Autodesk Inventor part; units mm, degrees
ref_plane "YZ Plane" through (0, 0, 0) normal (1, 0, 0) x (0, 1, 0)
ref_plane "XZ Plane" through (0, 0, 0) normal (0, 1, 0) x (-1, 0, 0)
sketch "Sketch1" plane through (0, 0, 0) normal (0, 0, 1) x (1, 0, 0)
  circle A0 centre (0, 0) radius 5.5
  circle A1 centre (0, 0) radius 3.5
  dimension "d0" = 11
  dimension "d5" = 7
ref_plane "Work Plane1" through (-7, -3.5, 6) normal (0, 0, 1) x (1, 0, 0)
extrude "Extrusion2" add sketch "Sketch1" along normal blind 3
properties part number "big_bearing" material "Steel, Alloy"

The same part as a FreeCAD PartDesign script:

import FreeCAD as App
import Part
import Sketcher
Q = App.Units.Quantity

doc = App.newDocument("Part")
body = doc.addObject("PartDesign::Body", "Body")

# Sketch on XY plane
sketch1 = body.newObject("Sketcher::SketchObject", "Sketch")
sketch1.AttachmentSupport = (doc.getObject("XY_Plane"), [""])
sketch1.MapMode = "FlatFace"
sketch1.addGeometry([
    Part.Circle(App.Vector(0, 0, 0), App.Vector(0, 0, 1), 5.5),
    Part.Circle(App.Vector(0, 0, 0), App.Vector(0, 0, 1), 3.5),
], False)
sketch1.addConstraint([
    Sketcher.Constraint("Coincident", 0, 3, -1, 1),
    Sketcher.Constraint("Coincident", 1, 3, -1, 1),
    Sketcher.Constraint("Diameter", 0, Q("11 mm")),
    Sketcher.Constraint("Diameter", 1, Q("7 mm")),
])
pad1 = body.newObject("PartDesign::Pad", "Pad")
pad1.Profile = sketch1
pad1.Length = 3

doc.recompute()
